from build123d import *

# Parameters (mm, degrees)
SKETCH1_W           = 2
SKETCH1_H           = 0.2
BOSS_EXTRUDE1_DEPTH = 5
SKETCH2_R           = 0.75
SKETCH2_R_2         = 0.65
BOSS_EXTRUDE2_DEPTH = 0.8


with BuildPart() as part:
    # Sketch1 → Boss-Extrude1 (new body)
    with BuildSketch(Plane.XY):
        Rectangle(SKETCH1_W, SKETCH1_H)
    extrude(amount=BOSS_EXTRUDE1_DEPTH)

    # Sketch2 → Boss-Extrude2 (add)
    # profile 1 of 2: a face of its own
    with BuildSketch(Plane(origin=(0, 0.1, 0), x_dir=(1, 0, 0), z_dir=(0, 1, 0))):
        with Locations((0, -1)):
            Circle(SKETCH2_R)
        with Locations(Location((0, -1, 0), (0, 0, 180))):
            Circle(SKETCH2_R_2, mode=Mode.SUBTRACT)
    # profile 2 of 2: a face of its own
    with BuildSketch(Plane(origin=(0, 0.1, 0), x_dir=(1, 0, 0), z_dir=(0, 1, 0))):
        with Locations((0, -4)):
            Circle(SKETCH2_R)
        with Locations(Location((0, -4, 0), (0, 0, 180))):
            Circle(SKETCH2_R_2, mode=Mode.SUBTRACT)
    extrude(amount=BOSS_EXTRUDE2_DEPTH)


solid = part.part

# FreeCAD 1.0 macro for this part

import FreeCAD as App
import Part
import Sketcher

V = App.Vector
Q = App.Units.Quantity


def add_polygon(sketch, points):
    """Adds a closed chain of lines whose ends are joined by coincident constraints."""
    first, n = sketch.GeometryCount, len(points)
    for a, b in zip(points, points[1:] + points[:1]):
        sketch.addGeometry(Part.LineSegment(App.Vector(*a, 0), App.Vector(*b, 0)), False)
    for i in range(n):
        sketch.addConstraint(Sketcher.Constraint("Coincident", first + i, 2, first + (i + 1) % n, 1))

doc = App.newDocument("Part")
body = doc.addObject("PartDesign::Body", "Body")

# Sketch on XY plane
sketch1 = doc.addObject("Sketcher::SketchObject", "Sketch")
body.addObject(sketch1)
sketch1.AttachmentSupport = (doc.XY_Plane, [""])
sketch1.MapMode = "FlatFace"
add_polygon(sketch1, [(-1, 0.1), (-1, -0.1), (1, -0.1), (1, 0.1)])  # lines 0-3
sketch1.addConstraint([
    Sketcher.Constraint("Vertical", 0),
    Sketcher.Constraint("Horizontal", 1),
    Sketcher.Constraint("Vertical", 2),
    Sketcher.Constraint("Horizontal", 3),
    Sketcher.Constraint("Symmetric", 0, 2, 2, 2, -1, 1),
    Sketcher.Constraint("DistanceX", 1, 1, 1, 2, Q("2 mm")),
    Sketcher.Constraint("DistanceY", 0, 2, 0, 1, Q("0.2 mm")),
])
pad1 = doc.addObject("PartDesign::Pad", "Pad")
body.addObject(pad1)
pad1.Profile = sketch1
pad1.Length = 5

# Sketch on XZ plane
sketch2 = doc.addObject("Sketcher::SketchObject", "Sketch001")
body.addObject(sketch2)
sketch2.AttachmentSupport = (doc.XZ_Plane, [""])
sketch2.MapMode = "FlatFace"
sketch2.AttachmentOffset = App.Placement(V(0, 0, -0.1), App.Rotation())
sketch2.addGeometry([
    Part.Circle(V(0, 1, 0), V(0, 0, 1), 0.8),
    Part.Circle(V(0, 1, 0), V(0, 0, 1), 0.7),
    Part.Circle(V(0, 4, 0), V(0, 0, 1), 0.8),
    Part.Circle(V(0, 4, 0), V(0, 0, 1), 0.7),
], False)
sketch2.addConstraint([
    Sketcher.Constraint("Coincident", 1, 3, 0, 3),
    Sketcher.Constraint("Coincident", 3, 3, 2, 3),
    Sketcher.Constraint("Equal", 0, 2),
    Sketcher.Constraint("Equal", 1, 3),
    Sketcher.Constraint("PointOnObject", 0, 3, -2),
    Sketcher.Constraint("PointOnObject", 2, 3, -2),
    Sketcher.Constraint("Diameter", 0, Q("1.5 mm")),
    Sketcher.Constraint("Diameter", 1, Q("1.3 mm")),
    Sketcher.Constraint("DistanceY", -1, 1, 0, 3, Q("1 mm")),
    Sketcher.Constraint("DistanceY", -1, 1, 2, 3, Q("4 mm")),
])
pad2 = doc.addObject("PartDesign::Pad", "Pad001")
body.addObject(pad2)
pad2.Profile = sketch2
pad2.Length = 0.8
pad2.Reversed = True

doc.recompute()
